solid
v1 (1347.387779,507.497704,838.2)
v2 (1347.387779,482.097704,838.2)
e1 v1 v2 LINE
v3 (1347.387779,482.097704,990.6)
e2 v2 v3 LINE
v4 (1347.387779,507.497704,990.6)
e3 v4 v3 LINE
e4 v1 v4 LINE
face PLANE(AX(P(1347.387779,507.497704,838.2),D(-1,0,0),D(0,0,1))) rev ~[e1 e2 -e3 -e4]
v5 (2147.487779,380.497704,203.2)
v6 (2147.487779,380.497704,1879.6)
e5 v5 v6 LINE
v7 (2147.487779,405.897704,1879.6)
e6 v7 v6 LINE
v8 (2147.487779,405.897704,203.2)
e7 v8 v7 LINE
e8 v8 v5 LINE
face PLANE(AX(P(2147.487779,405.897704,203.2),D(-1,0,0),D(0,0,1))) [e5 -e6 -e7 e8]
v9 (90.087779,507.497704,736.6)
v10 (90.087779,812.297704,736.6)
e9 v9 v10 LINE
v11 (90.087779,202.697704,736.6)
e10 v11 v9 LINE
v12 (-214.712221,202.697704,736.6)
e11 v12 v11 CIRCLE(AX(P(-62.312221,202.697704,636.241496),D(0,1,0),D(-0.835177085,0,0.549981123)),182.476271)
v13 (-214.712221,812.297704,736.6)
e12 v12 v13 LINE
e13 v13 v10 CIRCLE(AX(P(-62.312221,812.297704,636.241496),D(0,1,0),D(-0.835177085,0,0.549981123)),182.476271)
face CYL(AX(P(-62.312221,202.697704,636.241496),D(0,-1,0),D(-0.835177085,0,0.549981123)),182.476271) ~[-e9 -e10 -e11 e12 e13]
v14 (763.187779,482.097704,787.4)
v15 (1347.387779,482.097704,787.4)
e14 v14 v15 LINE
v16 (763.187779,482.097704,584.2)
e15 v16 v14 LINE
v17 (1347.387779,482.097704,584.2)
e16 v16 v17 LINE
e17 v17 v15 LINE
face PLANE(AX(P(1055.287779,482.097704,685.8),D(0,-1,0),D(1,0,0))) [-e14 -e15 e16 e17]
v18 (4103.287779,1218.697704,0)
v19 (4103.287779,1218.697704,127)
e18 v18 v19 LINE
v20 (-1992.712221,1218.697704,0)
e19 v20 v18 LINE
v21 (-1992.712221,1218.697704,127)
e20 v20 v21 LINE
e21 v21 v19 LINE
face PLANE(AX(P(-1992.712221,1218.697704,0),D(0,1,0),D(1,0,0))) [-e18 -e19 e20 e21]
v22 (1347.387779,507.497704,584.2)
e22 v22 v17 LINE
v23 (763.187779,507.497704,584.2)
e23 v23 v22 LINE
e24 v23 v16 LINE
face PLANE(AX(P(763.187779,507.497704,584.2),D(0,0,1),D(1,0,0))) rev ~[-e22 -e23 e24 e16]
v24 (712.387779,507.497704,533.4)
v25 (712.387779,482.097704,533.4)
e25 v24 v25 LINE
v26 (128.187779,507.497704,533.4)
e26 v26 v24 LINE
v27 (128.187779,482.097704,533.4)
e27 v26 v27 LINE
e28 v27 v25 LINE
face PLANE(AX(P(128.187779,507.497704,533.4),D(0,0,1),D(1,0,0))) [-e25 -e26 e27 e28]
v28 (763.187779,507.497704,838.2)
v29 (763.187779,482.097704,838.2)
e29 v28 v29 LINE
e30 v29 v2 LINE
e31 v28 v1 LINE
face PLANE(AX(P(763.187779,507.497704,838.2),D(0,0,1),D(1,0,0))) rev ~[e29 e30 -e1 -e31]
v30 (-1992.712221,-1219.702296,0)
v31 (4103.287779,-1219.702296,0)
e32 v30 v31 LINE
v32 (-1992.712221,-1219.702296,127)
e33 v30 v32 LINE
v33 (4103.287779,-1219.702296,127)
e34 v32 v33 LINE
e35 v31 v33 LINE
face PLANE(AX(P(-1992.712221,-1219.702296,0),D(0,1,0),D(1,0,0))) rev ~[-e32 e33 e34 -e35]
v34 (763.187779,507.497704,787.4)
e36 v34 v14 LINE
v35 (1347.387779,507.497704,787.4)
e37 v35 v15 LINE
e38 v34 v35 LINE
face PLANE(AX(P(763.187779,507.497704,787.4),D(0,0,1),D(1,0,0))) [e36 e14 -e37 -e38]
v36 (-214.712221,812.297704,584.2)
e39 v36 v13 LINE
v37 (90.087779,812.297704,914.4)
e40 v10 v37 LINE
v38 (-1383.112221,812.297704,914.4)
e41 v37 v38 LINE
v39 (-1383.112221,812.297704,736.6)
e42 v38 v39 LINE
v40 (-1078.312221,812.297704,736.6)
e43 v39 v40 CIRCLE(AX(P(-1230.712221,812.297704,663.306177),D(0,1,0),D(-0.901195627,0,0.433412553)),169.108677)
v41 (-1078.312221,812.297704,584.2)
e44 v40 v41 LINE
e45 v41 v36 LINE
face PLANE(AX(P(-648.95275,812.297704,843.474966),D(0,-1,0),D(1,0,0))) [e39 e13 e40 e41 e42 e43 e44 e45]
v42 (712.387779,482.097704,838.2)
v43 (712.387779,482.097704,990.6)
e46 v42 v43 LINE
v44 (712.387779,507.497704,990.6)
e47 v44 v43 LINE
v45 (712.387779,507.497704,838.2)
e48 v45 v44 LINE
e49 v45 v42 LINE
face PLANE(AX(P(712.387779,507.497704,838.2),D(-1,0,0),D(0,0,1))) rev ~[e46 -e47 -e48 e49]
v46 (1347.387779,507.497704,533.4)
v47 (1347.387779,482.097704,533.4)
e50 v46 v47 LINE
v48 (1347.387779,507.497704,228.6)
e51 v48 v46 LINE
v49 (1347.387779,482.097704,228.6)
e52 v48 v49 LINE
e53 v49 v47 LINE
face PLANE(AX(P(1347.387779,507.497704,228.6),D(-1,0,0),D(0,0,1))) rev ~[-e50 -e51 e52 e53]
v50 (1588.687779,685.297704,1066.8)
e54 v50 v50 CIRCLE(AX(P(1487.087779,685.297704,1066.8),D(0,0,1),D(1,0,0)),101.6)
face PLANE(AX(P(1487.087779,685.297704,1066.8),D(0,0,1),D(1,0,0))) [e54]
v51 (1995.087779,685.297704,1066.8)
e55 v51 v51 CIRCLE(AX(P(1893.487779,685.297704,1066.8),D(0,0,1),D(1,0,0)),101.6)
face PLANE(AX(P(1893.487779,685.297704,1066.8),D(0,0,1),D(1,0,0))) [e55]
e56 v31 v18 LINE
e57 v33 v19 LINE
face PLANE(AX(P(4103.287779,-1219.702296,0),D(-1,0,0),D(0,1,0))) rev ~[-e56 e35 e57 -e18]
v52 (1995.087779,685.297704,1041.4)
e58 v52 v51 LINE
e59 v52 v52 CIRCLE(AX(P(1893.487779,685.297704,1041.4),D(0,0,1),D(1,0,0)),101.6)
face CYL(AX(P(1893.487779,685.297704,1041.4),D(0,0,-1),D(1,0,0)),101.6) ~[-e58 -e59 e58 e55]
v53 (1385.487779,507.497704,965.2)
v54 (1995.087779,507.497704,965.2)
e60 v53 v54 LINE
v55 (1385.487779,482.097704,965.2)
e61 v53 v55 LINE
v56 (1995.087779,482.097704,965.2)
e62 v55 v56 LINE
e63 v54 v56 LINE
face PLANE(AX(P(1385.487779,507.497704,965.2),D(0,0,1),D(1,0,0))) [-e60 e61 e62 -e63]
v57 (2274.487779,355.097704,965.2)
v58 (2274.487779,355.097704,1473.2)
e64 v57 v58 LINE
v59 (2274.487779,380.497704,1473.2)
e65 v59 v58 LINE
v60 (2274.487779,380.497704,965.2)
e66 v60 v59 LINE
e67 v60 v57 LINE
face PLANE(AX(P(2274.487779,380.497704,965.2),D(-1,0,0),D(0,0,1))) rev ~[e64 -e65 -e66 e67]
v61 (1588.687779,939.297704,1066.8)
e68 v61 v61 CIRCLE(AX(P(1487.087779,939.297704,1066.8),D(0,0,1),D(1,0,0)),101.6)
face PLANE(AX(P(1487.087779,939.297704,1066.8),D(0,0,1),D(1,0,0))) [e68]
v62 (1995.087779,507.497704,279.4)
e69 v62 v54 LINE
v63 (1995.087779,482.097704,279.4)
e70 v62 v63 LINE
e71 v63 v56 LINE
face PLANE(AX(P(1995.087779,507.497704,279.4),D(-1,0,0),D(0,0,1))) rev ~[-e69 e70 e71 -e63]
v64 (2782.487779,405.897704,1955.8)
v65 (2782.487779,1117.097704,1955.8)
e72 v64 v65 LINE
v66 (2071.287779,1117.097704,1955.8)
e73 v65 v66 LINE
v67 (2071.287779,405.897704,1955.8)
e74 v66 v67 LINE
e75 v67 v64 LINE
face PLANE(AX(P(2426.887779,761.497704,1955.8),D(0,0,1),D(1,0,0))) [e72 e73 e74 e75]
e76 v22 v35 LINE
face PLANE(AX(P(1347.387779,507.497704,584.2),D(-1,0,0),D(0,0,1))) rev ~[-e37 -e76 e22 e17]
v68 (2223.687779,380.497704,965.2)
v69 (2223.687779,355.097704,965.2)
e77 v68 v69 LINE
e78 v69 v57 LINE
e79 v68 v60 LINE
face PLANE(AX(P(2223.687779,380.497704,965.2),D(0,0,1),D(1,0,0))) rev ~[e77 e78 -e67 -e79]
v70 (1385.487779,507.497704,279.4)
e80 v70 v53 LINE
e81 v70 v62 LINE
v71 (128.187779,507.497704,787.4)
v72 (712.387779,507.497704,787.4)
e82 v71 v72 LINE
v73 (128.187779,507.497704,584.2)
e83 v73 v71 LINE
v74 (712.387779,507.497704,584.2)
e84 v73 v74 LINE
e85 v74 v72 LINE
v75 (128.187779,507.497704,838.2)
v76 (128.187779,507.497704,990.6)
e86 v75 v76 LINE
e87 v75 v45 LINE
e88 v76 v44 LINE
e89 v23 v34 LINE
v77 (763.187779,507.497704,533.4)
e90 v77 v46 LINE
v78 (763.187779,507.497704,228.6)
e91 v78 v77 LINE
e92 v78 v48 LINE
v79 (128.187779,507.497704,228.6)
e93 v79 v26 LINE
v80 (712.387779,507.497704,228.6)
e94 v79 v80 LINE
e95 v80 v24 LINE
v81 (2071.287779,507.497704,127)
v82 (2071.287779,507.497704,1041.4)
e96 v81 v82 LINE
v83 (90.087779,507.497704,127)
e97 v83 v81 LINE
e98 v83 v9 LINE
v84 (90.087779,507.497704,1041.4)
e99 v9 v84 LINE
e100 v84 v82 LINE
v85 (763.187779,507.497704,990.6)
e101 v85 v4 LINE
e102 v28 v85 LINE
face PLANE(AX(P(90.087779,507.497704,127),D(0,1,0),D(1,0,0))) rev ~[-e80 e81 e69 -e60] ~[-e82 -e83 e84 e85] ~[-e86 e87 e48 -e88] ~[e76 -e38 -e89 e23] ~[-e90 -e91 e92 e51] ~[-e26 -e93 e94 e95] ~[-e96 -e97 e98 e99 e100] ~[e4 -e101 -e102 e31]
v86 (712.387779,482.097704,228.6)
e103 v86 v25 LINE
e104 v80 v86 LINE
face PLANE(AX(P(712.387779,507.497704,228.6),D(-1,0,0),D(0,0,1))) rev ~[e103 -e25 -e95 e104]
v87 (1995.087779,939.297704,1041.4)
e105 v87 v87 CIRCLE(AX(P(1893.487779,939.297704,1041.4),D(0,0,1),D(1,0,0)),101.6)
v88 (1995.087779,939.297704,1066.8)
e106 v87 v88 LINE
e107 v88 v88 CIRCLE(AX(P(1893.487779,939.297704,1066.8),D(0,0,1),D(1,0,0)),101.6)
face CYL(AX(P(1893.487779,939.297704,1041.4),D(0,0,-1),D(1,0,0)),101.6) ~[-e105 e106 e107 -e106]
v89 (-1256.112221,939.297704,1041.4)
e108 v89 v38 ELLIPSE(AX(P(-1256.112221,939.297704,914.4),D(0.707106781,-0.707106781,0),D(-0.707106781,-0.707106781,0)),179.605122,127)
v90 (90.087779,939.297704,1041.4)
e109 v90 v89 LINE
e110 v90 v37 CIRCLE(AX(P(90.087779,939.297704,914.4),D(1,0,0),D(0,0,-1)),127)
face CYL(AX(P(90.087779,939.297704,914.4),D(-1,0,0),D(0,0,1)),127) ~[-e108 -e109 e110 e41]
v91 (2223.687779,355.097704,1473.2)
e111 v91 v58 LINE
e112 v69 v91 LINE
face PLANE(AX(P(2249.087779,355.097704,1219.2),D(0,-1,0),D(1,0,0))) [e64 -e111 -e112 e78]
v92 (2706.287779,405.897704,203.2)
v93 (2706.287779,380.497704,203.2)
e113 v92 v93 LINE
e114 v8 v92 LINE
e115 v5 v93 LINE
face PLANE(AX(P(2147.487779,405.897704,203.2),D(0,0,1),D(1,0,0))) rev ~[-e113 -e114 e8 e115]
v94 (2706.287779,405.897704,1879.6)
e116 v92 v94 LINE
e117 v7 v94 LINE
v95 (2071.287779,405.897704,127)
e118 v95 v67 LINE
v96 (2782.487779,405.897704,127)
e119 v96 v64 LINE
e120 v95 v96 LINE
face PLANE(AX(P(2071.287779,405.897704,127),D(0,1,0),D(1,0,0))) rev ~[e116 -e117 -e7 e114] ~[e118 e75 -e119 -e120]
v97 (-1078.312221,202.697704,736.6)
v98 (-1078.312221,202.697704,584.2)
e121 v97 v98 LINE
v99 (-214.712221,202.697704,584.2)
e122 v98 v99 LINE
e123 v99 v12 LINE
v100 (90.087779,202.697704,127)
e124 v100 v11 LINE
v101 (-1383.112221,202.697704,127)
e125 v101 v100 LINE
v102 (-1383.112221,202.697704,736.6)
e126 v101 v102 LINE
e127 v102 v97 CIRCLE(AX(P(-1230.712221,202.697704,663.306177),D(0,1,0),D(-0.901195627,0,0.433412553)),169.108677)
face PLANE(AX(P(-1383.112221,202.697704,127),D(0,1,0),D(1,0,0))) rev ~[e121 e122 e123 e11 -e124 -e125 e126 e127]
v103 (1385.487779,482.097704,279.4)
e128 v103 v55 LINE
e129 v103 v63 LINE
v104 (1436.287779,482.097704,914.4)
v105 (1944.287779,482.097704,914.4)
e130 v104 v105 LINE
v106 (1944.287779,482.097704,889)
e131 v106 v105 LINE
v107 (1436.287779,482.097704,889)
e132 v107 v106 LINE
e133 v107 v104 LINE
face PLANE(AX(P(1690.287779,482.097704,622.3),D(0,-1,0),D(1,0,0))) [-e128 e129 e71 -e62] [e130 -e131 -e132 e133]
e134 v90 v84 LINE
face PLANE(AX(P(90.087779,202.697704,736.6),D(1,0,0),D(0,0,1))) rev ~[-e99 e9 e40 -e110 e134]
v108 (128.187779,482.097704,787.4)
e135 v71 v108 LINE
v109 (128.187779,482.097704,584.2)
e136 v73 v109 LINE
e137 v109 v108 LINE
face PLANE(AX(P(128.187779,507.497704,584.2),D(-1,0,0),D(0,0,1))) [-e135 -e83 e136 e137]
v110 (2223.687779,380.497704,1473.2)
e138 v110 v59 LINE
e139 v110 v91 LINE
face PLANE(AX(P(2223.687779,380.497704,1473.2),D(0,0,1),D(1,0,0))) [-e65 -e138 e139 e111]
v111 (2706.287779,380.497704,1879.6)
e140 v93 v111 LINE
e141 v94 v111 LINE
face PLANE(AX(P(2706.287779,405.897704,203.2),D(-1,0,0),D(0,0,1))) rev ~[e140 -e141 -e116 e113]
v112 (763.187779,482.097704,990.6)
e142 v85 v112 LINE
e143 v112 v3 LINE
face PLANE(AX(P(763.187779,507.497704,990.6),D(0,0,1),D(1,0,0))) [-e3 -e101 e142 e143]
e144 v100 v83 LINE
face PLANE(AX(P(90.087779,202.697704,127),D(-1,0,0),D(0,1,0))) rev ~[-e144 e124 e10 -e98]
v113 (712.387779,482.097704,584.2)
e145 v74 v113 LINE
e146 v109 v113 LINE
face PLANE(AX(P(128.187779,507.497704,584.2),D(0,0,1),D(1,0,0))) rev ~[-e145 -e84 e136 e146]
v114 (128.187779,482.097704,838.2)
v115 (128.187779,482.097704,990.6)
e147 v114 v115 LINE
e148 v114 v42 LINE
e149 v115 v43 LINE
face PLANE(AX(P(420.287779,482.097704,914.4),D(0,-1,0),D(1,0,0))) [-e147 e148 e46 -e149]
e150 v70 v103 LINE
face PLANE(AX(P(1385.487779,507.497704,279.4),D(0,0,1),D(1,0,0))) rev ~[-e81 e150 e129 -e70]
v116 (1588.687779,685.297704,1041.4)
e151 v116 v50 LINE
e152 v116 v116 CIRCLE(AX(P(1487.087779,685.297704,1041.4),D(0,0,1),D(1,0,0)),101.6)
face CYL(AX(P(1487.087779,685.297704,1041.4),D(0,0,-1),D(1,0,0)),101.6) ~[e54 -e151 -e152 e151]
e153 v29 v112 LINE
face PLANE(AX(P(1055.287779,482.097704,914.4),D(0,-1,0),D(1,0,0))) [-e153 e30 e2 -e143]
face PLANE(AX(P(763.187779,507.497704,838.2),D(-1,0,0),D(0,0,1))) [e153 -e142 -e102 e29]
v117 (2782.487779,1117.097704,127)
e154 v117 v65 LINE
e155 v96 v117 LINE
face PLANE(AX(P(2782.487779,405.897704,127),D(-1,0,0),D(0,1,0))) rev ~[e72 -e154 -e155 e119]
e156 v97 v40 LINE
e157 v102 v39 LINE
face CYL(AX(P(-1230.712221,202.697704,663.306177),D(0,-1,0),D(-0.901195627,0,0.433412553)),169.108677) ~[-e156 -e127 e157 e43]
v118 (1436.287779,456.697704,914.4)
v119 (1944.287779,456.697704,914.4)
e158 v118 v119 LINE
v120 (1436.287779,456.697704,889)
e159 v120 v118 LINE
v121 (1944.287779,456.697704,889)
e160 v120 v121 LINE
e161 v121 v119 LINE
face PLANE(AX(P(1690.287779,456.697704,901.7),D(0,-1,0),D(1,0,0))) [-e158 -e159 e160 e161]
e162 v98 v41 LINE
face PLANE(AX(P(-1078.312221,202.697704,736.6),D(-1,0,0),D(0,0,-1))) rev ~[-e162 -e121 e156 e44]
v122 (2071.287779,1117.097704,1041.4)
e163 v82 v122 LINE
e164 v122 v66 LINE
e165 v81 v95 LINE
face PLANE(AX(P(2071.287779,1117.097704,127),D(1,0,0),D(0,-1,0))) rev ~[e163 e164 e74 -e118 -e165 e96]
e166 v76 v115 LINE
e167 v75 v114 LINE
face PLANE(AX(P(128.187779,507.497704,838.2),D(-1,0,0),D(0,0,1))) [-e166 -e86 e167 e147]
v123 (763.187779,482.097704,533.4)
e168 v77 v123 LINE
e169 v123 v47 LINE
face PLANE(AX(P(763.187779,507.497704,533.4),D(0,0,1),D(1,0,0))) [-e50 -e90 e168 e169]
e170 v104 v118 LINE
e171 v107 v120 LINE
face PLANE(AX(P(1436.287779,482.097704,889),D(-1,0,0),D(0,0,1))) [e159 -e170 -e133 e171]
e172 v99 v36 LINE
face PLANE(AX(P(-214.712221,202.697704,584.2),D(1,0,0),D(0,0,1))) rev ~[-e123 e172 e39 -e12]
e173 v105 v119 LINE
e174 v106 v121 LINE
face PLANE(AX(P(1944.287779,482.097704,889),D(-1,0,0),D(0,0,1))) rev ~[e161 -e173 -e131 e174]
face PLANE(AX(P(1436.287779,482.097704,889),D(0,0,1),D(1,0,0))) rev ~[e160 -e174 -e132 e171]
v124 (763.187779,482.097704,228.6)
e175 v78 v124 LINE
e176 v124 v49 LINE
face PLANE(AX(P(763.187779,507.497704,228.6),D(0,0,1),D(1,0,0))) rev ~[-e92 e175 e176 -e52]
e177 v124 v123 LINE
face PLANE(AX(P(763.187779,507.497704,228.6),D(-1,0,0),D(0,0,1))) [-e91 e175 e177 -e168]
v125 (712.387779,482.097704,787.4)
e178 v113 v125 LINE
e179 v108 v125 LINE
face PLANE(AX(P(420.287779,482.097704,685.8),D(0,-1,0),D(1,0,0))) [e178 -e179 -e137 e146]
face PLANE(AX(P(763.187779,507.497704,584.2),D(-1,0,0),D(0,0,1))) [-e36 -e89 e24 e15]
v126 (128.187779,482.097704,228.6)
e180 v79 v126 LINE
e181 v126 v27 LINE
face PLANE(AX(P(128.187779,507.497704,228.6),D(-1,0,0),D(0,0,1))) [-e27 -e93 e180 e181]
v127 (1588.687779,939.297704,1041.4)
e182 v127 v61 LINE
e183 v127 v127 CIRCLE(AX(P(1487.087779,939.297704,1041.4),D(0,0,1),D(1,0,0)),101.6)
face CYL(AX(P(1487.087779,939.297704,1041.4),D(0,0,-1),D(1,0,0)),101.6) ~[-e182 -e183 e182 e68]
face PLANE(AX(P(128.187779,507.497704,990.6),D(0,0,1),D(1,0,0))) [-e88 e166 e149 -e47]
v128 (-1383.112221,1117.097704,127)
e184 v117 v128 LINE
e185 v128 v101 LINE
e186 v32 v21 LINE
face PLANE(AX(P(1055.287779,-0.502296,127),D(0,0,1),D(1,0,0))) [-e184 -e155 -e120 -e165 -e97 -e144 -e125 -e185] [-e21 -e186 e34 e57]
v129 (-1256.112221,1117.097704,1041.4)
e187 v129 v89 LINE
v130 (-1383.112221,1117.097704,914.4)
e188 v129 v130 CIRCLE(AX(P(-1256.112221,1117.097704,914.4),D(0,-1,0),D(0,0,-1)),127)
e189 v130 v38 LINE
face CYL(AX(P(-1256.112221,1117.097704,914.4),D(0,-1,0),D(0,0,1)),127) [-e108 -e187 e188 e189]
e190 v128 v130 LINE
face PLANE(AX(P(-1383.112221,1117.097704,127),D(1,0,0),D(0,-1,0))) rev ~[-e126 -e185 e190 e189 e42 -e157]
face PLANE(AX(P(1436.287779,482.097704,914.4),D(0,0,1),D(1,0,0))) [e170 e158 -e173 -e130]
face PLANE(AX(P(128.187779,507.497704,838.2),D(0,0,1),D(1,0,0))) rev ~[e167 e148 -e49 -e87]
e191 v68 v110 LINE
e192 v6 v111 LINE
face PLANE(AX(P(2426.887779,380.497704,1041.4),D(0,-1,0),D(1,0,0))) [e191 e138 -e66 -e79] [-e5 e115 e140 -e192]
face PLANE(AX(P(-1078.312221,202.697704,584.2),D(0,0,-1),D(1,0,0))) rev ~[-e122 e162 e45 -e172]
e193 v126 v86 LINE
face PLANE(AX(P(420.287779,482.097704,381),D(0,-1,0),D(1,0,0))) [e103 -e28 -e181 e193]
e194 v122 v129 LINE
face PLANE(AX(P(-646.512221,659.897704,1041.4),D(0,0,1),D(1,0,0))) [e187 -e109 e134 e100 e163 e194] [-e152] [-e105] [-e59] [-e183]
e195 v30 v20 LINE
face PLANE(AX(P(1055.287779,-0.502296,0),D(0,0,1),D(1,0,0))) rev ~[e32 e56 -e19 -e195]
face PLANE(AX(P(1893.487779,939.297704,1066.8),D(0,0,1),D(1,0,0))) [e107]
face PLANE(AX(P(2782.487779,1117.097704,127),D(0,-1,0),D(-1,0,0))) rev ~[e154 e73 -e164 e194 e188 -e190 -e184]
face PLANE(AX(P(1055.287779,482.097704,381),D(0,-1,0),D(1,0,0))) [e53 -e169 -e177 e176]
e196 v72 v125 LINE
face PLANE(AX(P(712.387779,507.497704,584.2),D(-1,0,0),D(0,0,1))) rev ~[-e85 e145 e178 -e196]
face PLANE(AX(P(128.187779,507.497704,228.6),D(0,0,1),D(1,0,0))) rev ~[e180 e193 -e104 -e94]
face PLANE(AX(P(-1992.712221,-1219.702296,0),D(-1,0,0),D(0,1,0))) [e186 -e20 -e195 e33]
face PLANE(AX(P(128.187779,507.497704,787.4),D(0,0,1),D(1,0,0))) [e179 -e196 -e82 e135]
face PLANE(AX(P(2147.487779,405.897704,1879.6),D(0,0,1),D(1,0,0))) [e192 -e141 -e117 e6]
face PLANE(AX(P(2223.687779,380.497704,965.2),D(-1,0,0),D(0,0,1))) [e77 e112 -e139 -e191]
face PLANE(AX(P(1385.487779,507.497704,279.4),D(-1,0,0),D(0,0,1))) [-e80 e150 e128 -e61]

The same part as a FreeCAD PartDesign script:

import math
import FreeCAD as App
import Part
import Sketcher
Q = App.Units.Quantity


def edges_at(feature, points):
    """Names of the edges that pass closest to the given points."""
    edges = feature.Shape.Edges
    near = lambda p: min(range(len(edges)), key=lambda i: edges[i].distToShape(Part.Vertex(*p))[0])
    return sorted({f"Edge{near(p) + 1}" for p in points})

doc = App.newDocument("Part")
body = doc.addObject("PartDesign::Body", "Body")

# Sketch on XY plane
sketch1 = body.newObject("Sketcher::SketchObject", "Sketch")
sketch1.AttachmentSupport = (doc.getObject("XY_Plane"), [""])
sketch1.MapMode = "FlatFace"
sketch1.addGeometry(Part.LineSegment(App.Vector(-1993, 1219, 0), App.Vector(-1993, -1220, 0)), False)
sketch1.addGeometry(Part.LineSegment(App.Vector(-1993, -1220, 0), App.Vector(4103, -1220, 0)), False)
sketch1.addGeometry(Part.LineSegment(App.Vector(4103, -1220, 0), App.Vector(4103, 1219, 0)), False)
sketch1.addGeometry(Part.LineSegment(App.Vector(4103, 1219, 0), App.Vector(-1993, 1219, 0)), False)
sketch1.addConstraint(Sketcher.Constraint("Coincident", 0, 2, 1, 1))
sketch1.addConstraint(Sketcher.Constraint("Coincident", 1, 2, 2, 1))
sketch1.addConstraint(Sketcher.Constraint("Coincident", 2, 2, 3, 1))
sketch1.addConstraint(Sketcher.Constraint("Coincident", 3, 2, 0, 1))
sketch1.addConstraint(Sketcher.Constraint("Vertical", 0))
sketch1.addConstraint(Sketcher.Constraint("Horizontal", 1))
sketch1.addConstraint(Sketcher.Constraint("Vertical", 2))
sketch1.addConstraint(Sketcher.Constraint("Horizontal", 3))
sketch1.addConstraint(Sketcher.Constraint("DistanceX", 1, 1, 1, 2, Q("240 in")))
sketch1.addConstraint(Sketcher.Constraint("DistanceY", 0, 2, 0, 1, Q("96 in")))
sketch1.addConstraint(Sketcher.Constraint("DistanceX", 0, 2, -1, 1, Q("1992.712221 mm")))
sketch1.addConstraint(Sketcher.Constraint("DistanceY", 0, 2, -1, 1, Q("1219.702296 mm")))
pad1 = body.newObject("PartDesign::Pad", "Pad")
pad1.Profile = sketch1
pad1.Length = Q("5 in")

# Sketch on XY plane
sketch2 = body.newObject("Sketcher::SketchObject", "Sketch001")
sketch2.AttachmentSupport = (doc.getObject("XY_Plane"), [""])
sketch2.MapMode = "FlatFace"
sketch2.AttachmentOffset = App.Placement(App.Vector(0, 0, 5 * 25.4), App.Rotation())
sketch2.addGeometry(Part.LineSegment(App.Vector(-1383, 1117, 0), App.Vector(-1383, 203, 0)), False)
sketch2.addGeometry(Part.LineSegment(App.Vector(-1383, 203, 0), App.Vector(90, 203, 0)), False)
sketch2.addGeometry(Part.LineSegment(App.Vector(90, 203, 0), App.Vector(90, 507, 0)), False)
sketch2.addGeometry(Part.LineSegment(App.Vector(90, 507, 0), App.Vector(2071, 507, 0)), False)
sketch2.addGeometry(Part.LineSegment(App.Vector(2071, 507, 0), App.Vector(2071, 1117, 0)), False)
sketch2.addGeometry(Part.LineSegment(App.Vector(2071, 1117, 0), App.Vector(-1383, 1117, 0)), False)
sketch2.addConstraint(Sketcher.Constraint("Coincident", 0, 2, 1, 1))
sketch2.addConstraint(Sketcher.Constraint("Coincident", 1, 2, 2, 1))
sketch2.addConstraint(Sketcher.Constraint("Coincident", 2, 2, 3, 1))
sketch2.addConstraint(Sketcher.Constraint("Coincident", 3, 2, 4, 1))
sketch2.addConstraint(Sketcher.Constraint("Coincident", 4, 2, 5, 1))
sketch2.addConstraint(Sketcher.Constraint("Coincident", 5, 2, 0, 1))
sketch2.addConstraint(Sketcher.Constraint("Vertical", 0))
sketch2.addConstraint(Sketcher.Constraint("Horizontal", 1))
sketch2.addConstraint(Sketcher.Constraint("Vertical", 2))
sketch2.addConstraint(Sketcher.Constraint("Horizontal", 3))
sketch2.addConstraint(Sketcher.Constraint("Vertical", 4))
sketch2.addConstraint(Sketcher.Constraint("Horizontal", 5))
sketch2.addConstraint(Sketcher.Constraint("DistanceX", 1, 1, 1, 2, Q("58 in")))
sketch2.addConstraint(Sketcher.Constraint("DistanceX", 3, 1, 3, 2, Q("78 in")))
sketch2.addConstraint(Sketcher.Constraint("DistanceY", 0, 2, 0, 1, Q("36 in")))
sketch2.addConstraint(Sketcher.Constraint("DistanceY", 2, 1, 2, 2, Q("12 in")))
sketch2.addConstraint(Sketcher.Constraint("DistanceX", 0, 2, -1, 1, Q("1383.112221 mm")))
sketch2.addConstraint(Sketcher.Constraint("DistanceY", -1, 1, 0, 2, Q("202.697704 mm")))
pad2 = body.newObject("PartDesign::Pad", "Pad001")
pad2.Profile = sketch2
pad2.Length = Q("36 in")

# Sketch on XY plane
sketch3 = body.newObject("Sketcher::SketchObject", "Sketch002")
sketch3.AttachmentSupport = (doc.getObject("XY_Plane"), [""])
sketch3.MapMode = "FlatFace"
sketch3.AttachmentOffset = App.Placement(App.Vector(0, 0, 5 * 25.4), App.Rotation())
sketch3.addGeometry(Part.LineSegment(App.Vector(2782, 1117, 0), App.Vector(2071, 1117, 0)), False)
sketch3.addGeometry(Part.LineSegment(App.Vector(2071, 1117, 0), App.Vector(2071, 406, 0)), False)
sketch3.addGeometry(Part.LineSegment(App.Vector(2071, 406, 0), App.Vector(2782, 406, 0)), False)
sketch3.addGeometry(Part.LineSegment(App.Vector(2782, 406, 0), App.Vector(2782, 1117, 0)), False)
sketch3.addConstraint(Sketcher.Constraint("Coincident", 0, 2, 1, 1))
sketch3.addConstraint(Sketcher.Constraint("Coincident", 1, 2, 2, 1))
sketch3.addConstraint(Sketcher.Constraint("Coincident", 2, 2, 3, 1))
sketch3.addConstraint(Sketcher.Constraint("Coincident", 3, 2, 0, 1))
sketch3.addConstraint(Sketcher.Constraint("Horizontal", 0))
sketch3.addConstraint(Sketcher.Constraint("Vertical", 1))
sketch3.addConstraint(Sketcher.Constraint("Horizontal", 2))
sketch3.addConstraint(Sketcher.Constraint("Vertical", 3))
sketch3.addConstraint(Sketcher.Constraint("Equal", 2, 1))
sketch3.addConstraint(Sketcher.Constraint("DistanceX", 0, 2, 0, 1, Q("28 in")))
sketch3.addConstraint(Sketcher.Constraint("DistanceX", -1, 1, 0, 2, Q("2071.287779 mm")))
sketch3.addConstraint(Sketcher.Constraint("DistanceY", -1, 1, 0, 2, Q("1117.097704 mm")))
pad3 = body.newObject("PartDesign::Pad", "Pad002")
pad3.Profile = sketch3
pad3.Length = Q("72 in")

# Sketch on XY plane
sketch4 = body.newObject("Sketcher::SketchObject", "Sketch003")
sketch4.AttachmentSupport = (doc.getObject("XY_Plane"), [""])
sketch4.MapMode = "FlatFace"
sketch4.AttachmentOffset = App.Placement(App.Vector(0, 0, 41 * 25.4), App.Rotation())
sketch4.addGeometry(Part.Circle(App.Vector(1893, 939, 0), App.Vector(0, 0, 1), 102), False)
sketch4.addGeometry(Part.Circle(App.Vector(1487, 939, 0), App.Vector(0, 0, 1), 102), False)
sketch4.addGeometry(Part.Circle(App.Vector(1487, 685, 0), App.Vector(0, 0, 1), 102), False)
sketch4.addGeometry(Part.Circle(App.Vector(1893, 685, 0), App.Vector(0, 0, 1), 102), False)
sketch4.addConstraint(Sketcher.Constraint("Equal", 0, 1))
sketch4.addConstraint(Sketcher.Constraint("Equal", 1, 2))
sketch4.addConstraint(Sketcher.Constraint("Equal", 2, 3))
sketch4.addConstraint(Sketcher.Constraint("Horizontal", 0, 3, 1, 3))
sketch4.addConstraint(Sketcher.Constraint("Horizontal", 2, 3, 3, 3))
sketch4.addConstraint(Sketcher.Constraint("Vertical", 1, 3, 2, 3))
sketch4.addConstraint(Sketcher.Constraint("Vertical", 0, 3, 3, 3))
sketch4.addConstraint(Sketcher.Constraint("Diameter", 0, Q("8 in")))
sketch4.addConstraint(Sketcher.Constraint("DistanceX", 1, 3, 0, 3, Q("16 in")))
sketch4.addConstraint(Sketcher.Constraint("DistanceY", 2, 3, 1, 3, Q("10 in")))
sketch4.addConstraint(Sketcher.Constraint("DistanceX", -1, 1, 0, 3, Q("1893.487779 mm")))
sketch4.addConstraint(Sketcher.Constraint("DistanceY", -1, 1, 0, 3, Q("939.297704 mm")))
pad4 = body.newObject("PartDesign::Pad", "Pad003")
pad4.Profile = sketch4
pad4.Length = Q("1 in")

# Sketch on XZ plane
sketch5 = body.newObject("Sketcher::SketchObject", "Sketch004")
sketch5.AttachmentSupport = (doc.getObject("XZ_Plane"), [""])
sketch5.MapMode = "FlatFace"
sketch5.AttachmentOffset = App.Placement(App.Vector(0, 0, -507.497704), App.Rotation())
sketch5.addGeometry(Part.LineSegment(App.Vector(1385, 965, 0), App.Vector(1385, 279, 0)), False)
sketch5.addGeometry(Part.LineSegment(App.Vector(1385, 279, 0), App.Vector(1995, 279, 0)), False)
sketch5.addGeometry(Part.LineSegment(App.Vector(1995, 279, 0), App.Vector(1995, 965, 0)), False)
sketch5.addGeometry(Part.LineSegment(App.Vector(1995, 965, 0), App.Vector(1385, 965, 0)), False)
sketch5.addConstraint(Sketcher.Constraint("Coincident", 0, 2, 1, 1))
sketch5.addConstraint(Sketcher.Constraint("Coincident", 1, 2, 2, 1))
sketch5.addConstraint(Sketcher.Constraint("Coincident", 2, 2, 3, 1))
sketch5.addConstraint(Sketcher.Constraint("Coincident", 3, 2, 0, 1))
sketch5.addConstraint(Sketcher.Constraint("Vertical", 0))
sketch5.addConstraint(Sketcher.Constraint("Horizontal", 1))
sketch5.addConstraint(Sketcher.Constraint("Vertical", 2))
sketch5.addConstraint(Sketcher.Constraint("Horizontal", 3))
sketch5.addConstraint(Sketcher.Constraint("DistanceX", 1, 1, 1, 2, Q("24 in")))
sketch5.addConstraint(Sketcher.Constraint("DistanceY", 0, 2, 0, 1, Q("27 in")))
sketch5.addConstraint(Sketcher.Constraint("DistanceY", -1, 1, 0, 2, Q("11 in")))
sketch5.addConstraint(Sketcher.Constraint("DistanceX", -1, 1, 0, 2, Q("1385.487779 mm")))
pad5 = body.newObject("PartDesign::Pad", "Pad004")
pad5.Profile = sketch5
pad5.Length = Q("1 in")

# Sketch on XZ plane
sketch6 = body.newObject("Sketcher::SketchObject", "Sketch005")
sketch6.AttachmentSupport = (doc.getObject("XZ_Plane"), [""])
sketch6.MapMode = "FlatFace"
sketch6.AttachmentOffset = App.Placement(App.Vector(0, 0, -482.097704), App.Rotation())
sketch6.addGeometry(Part.LineSegment(App.Vector(1436, 914, 0), App.Vector(1436, 889, 0)), False)
sketch6.addGeometry(Part.LineSegment(App.Vector(1436, 889, 0), App.Vector(1944, 889, 0)), False)
sketch6.addGeometry(Part.LineSegment(App.Vector(1944, 889, 0), App.Vector(1944, 914, 0)), False)
sketch6.addGeometry(Part.LineSegment(App.Vector(1944, 914, 0), App.Vector(1436, 914, 0)), False)
sketch6.addConstraint(Sketcher.Constraint("Coincident", 0, 2, 1, 1))
sketch6.addConstraint(Sketcher.Constraint("Coincident", 1, 2, 2, 1))
sketch6.addConstraint(Sketcher.Constraint("Coincident", 2, 2, 3, 1))
sketch6.addConstraint(Sketcher.Constraint("Coincident", 3, 2, 0, 1))
sketch6.addConstraint(Sketcher.Constraint("Vertical", 0))
sketch6.addConstraint(Sketcher.Constraint("Horizontal", 1))
sketch6.addConstraint(Sketcher.Constraint("Vertical", 2))
sketch6.addConstraint(Sketcher.Constraint("Horizontal", 3))
sketch6.addConstraint(Sketcher.Constraint("DistanceX", 1, 1, 1, 2, Q("20 in")))
sketch6.addConstraint(Sketcher.Constraint("DistanceY", 0, 2, 0, 1, Q("1 in")))
sketch6.addConstraint(Sketcher.Constraint("DistanceY", -1, 1, 0, 2, Q("35 in")))
sketch6.addConstraint(Sketcher.Constraint("DistanceX", -1, 1, 0, 2, Q("1436.287779 mm")))
pad6 = body.newObject("PartDesign::Pad", "Pad005")
pad6.Profile = sketch6
pad6.Length = Q("1 in")

# Sketch on XZ plane
sketch7 = body.newObject("Sketcher::SketchObject", "Sketch006")
sketch7.AttachmentSupport = (doc.getObject("XZ_Plane"), [""])
sketch7.MapMode = "FlatFace"
sketch7.AttachmentOffset = App.Placement(App.Vector(0, 0, -405.897704), App.Rotation())
sketch7.addGeometry(Part.LineSegment(App.Vector(2147, 1880, 0), App.Vector(2147, 203, 0)), False)
sketch7.addGeometry(Part.LineSegment(App.Vector(2147, 203, 0), App.Vector(2706, 203, 0)), False)
sketch7.addGeometry(Part.LineSegment(App.Vector(2706, 203, 0), App.Vector(2706, 1880, 0)), False)
sketch7.addGeometry(Part.LineSegment(App.Vector(2706, 1880, 0), App.Vector(2147, 1880, 0)), False)
sketch7.addConstraint(Sketcher.Constraint("Coincident", 0, 2, 1, 1))
sketch7.addConstraint(Sketcher.Constraint("Coincident", 1, 2, 2, 1))
sketch7.addConstraint(Sketcher.Constraint("Coincident", 2, 2, 3, 1))
sketch7.addConstraint(Sketcher.Constraint("Coincident", 3, 2, 0, 1))
sketch7.addConstraint(Sketcher.Constraint("Vertical", 0))
sketch7.addConstraint(Sketcher.Constraint("Horizontal", 1))
sketch7.addConstraint(Sketcher.Constraint("Vertical", 2))
sketch7.addConstraint(Sketcher.Constraint("Horizontal", 3))
sketch7.addConstraint(Sketcher.Constraint("DistanceX", 1, 1, 1, 2, Q("22 in")))
sketch7.addConstraint(Sketcher.Constraint("DistanceY", 0, 2, 0, 1, Q("66 in")))
sketch7.addConstraint(Sketcher.Constraint("DistanceY", -1, 1, 0, 2, Q("8 in")))
sketch7.addConstraint(Sketcher.Constraint("DistanceX", -1, 1, 0, 2, Q("2147.487779 mm")))
pad7 = body.newObject("PartDesign::Pad", "Pad006")
pad7.Profile = sketch7
pad7.Length = Q("1 in")

# Sketch on XZ plane
sketch8 = body.newObject("Sketcher::SketchObject", "Sketch007")
sketch8.AttachmentSupport = (doc.getObject("XZ_Plane"), [""])
sketch8.MapMode = "FlatFace"
sketch8.AttachmentOffset = App.Placement(App.Vector(0, 0, -380.497704), App.Rotation())
sketch8.addGeometry(Part.LineSegment(App.Vector(2224, 1473, 0), App.Vector(2224, 965, 0)), False)
sketch8.addGeometry(Part.LineSegment(App.Vector(2224, 965, 0), App.Vector(2274, 965, 0)), False)
sketch8.addGeometry(Part.LineSegment(App.Vector(2274, 965, 0), App.Vector(2274, 1473, 0)), False)
sketch8.addGeometry(Part.LineSegment(App.Vector(2274, 1473, 0), App.Vector(2224, 1473, 0)), False)
sketch8.addConstraint(Sketcher.Constraint("Coincident", 0, 2, 1, 1))
sketch8.addConstraint(Sketcher.Constraint("Coincident", 1, 2, 2, 1))
sketch8.addConstraint(Sketcher.Constraint("Coincident", 2, 2, 3, 1))
sketch8.addConstraint(Sketcher.Constraint("Coincident", 3, 2, 0, 1))
sketch8.addConstraint(Sketcher.Constraint("Vertical", 0))
sketch8.addConstraint(Sketcher.Constraint("Horizontal", 1))
sketch8.addConstraint(Sketcher.Constraint("Vertical", 2))
sketch8.addConstraint(Sketcher.Constraint("Horizontal", 3))
sketch8.addConstraint(Sketcher.Constraint("DistanceX", 1, 1, 1, 2, Q("2 in")))
sketch8.addConstraint(Sketcher.Constraint("DistanceY", 0, 2, 0, 1, Q("20 in")))
sketch8.addConstraint(Sketcher.Constraint("DistanceY", -1, 1, 0, 2, Q("38 in")))
sketch8.addConstraint(Sketcher.Constraint("DistanceX", -1, 1, 0, 2, Q("2223.687779 mm")))
pad8 = body.newObject("PartDesign::Pad", "Pad007")
pad8.Profile = sketch8
pad8.Length = Q("1 in")

# Sketch on XZ plane
sketch9 = body.newObject("Sketcher::SketchObject", "Sketch008")
sketch9.AttachmentSupport = (doc.getObject("XZ_Plane"), [""])
sketch9.MapMode = "FlatFace"
sketch9.AttachmentOffset = App.Placement(App.Vector(0, 0, -507.497704), App.Rotation())
sketch9.addGeometry(Part.LineSegment(App.Vector(128, 991, 0), App.Vector(128, 838, 0)), False)
sketch9.addGeometry(Part.LineSegment(App.Vector(128, 838, 0), App.Vector(712, 838, 0)), False)
sketch9.addGeometry(Part.LineSegment(App.Vector(712, 838, 0), App.Vector(712, 991, 0)), False)
sketch9.addGeometry(Part.LineSegment(App.Vector(712, 991, 0), App.Vector(128, 991, 0)), False)
sketch9.addGeometry(Part.LineSegment(App.Vector(763, 991, 0), App.Vector(763, 838, 0)), False)
sketch9.addGeometry(Part.LineSegment(App.Vector(763, 838, 0), App.Vector(1347, 838, 0)), False)
sketch9.addGeometry(Part.LineSegment(App.Vector(1347, 838, 0), App.Vector(1347, 991, 0)), False)
sketch9.addGeometry(Part.LineSegment(App.Vector(1347, 991, 0), App.Vector(763, 991, 0)), False)
sketch9.addGeometry(Part.LineSegment(App.Vector(128, 787, 0), App.Vector(128, 584, 0)), False)
sketch9.addGeometry(Part.LineSegment(App.Vector(128, 584, 0), App.Vector(712, 584, 0)), False)
sketch9.addGeometry(Part.LineSegment(App.Vector(712, 584, 0), App.Vector(712, 787, 0)), False)
sketch9.addGeometry(Part.LineSegment(App.Vector(712, 787, 0), App.Vector(128, 787, 0)), False)
sketch9.addGeometry(Part.LineSegment(App.Vector(763, 787, 0), App.Vector(763, 584, 0)), False)
sketch9.addGeometry(Part.LineSegment(App.Vector(763, 584, 0), App.Vector(1347, 584, 0)), False)
sketch9.addGeometry(Part.LineSegment(App.Vector(1347, 584, 0), App.Vector(1347, 787, 0)), False)
sketch9.addGeometry(Part.LineSegment(App.Vector(1347, 787, 0), App.Vector(763, 787, 0)), False)
sketch9.addGeometry(Part.LineSegment(App.Vector(128, 533, 0), App.Vector(128, 229, 0)), False)
sketch9.addGeometry(Part.LineSegment(App.Vector(128, 229, 0), App.Vector(712, 229, 0)), False)
sketch9.addGeometry(Part.LineSegment(App.Vector(712, 229, 0), App.Vector(712, 533, 0)), False)
sketch9.addGeometry(Part.LineSegment(App.Vector(712, 533, 0), App.Vector(128, 533, 0)), False)
sketch9.addGeometry(Part.LineSegment(App.Vector(763, 533, 0), App.Vector(763, 229, 0)), False)
sketch9.addGeometry(Part.LineSegment(App.Vector(763, 229, 0), App.Vector(1347, 229, 0)), False)
sketch9.addGeometry(Part.LineSegment(App.Vector(1347, 229, 0), App.Vector(1347, 533, 0)), False)
sketch9.addGeometry(Part.LineSegment(App.Vector(1347, 533, 0), App.Vector(763, 533, 0)), False)
sketch9.addConstraint(Sketcher.Constraint("Coincident", 0, 2, 1, 1))
sketch9.addConstraint(Sketcher.Constraint("Coincident", 1, 2, 2, 1))
sketch9.addConstraint(Sketcher.Constraint("Coincident", 2, 2, 3, 1))
sketch9.addConstraint(Sketcher.Constraint("Coincident", 3, 2, 0, 1))
sketch9.addConstraint(Sketcher.Constraint("Coincident", 4, 2, 5, 1))
sketch9.addConstraint(Sketcher.Constraint("Coincident", 5, 2, 6, 1))
sketch9.addConstraint(Sketcher.Constraint("Coincident", 6, 2, 7, 1))
sketch9.addConstraint(Sketcher.Constraint("Coincident", 7, 2, 4, 1))
sketch9.addConstraint(Sketcher.Constraint("Coincident", 8, 2, 9, 1))
sketch9.addConstraint(Sketcher.Constraint("Coincident", 9, 2, 10, 1))
sketch9.addConstraint(Sketcher.Constraint("Coincident", 10, 2, 11, 1))
sketch9.addConstraint(Sketcher.Constraint("Coincident", 11, 2, 8, 1))
sketch9.addConstraint(Sketcher.Constraint("Coincident", 12, 2, 13, 1))
sketch9.addConstraint(Sketcher.Constraint("Coincident", 13, 2, 14, 1))
sketch9.addConstraint(Sketcher.Constraint("Coincident", 14, 2, 15, 1))
sketch9.addConstraint(Sketcher.Constraint("Coincident", 15, 2, 12, 1))
sketch9.addConstraint(Sketcher.Constraint("Coincident", 16, 2, 17, 1))
sketch9.addConstraint(Sketcher.Constraint("Coincident", 17, 2, 18, 1))
sketch9.addConstraint(Sketcher.Constraint("Coincident", 18, 2, 19, 1))
sketch9.addConstraint(Sketcher.Constraint("Coincident", 19, 2, 16, 1))
sketch9.addConstraint(Sketcher.Constraint("Coincident", 20, 2, 21, 1))
sketch9.addConstraint(Sketcher.Constraint("Coincident", 21, 2, 22, 1))
sketch9.addConstraint(Sketcher.Constraint("Coincident", 22, 2, 23, 1))
sketch9.addConstraint(Sketcher.Constraint("Coincident", 23, 2, 20, 1))
sketch9.addConstraint(Sketcher.Constraint("Vertical", 0))
sketch9.addConstraint(Sketcher.Constraint("Horizontal", 1))
sketch9.addConstraint(Sketcher.Constraint("Vertical", 2))
sketch9.addConstraint(Sketcher.Constraint("Horizontal", 3))
sketch9.addConstraint(Sketcher.Constraint("Vertical", 4))
sketch9.addConstraint(Sketcher.Constraint("Horizontal", 5))
sketch9.addConstraint(Sketcher.Constraint("Vertical", 6))
sketch9.addConstraint(Sketcher.Constraint("Horizontal", 7))
sketch9.addConstraint(Sketcher.Constraint("Vertical", 8))
sketch9.addConstraint(Sketcher.Constraint("Horizontal", 9))
sketch9.addConstraint(Sketcher.Constraint("Vertical", 10))
sketch9.addConstraint(Sketcher.Constraint("Horizontal", 11))
sketch9.addConstraint(Sketcher.Constraint("Vertical", 12))
sketch9.addConstraint(Sketcher.Constraint("Horizontal", 13))
sketch9.addConstraint(Sketcher.Constraint("Vertical", 14))
sketch9.addConstraint(Sketcher.Constraint("Horizontal", 15))
sketch9.addConstraint(Sketcher.Constraint("Vertical", 16))
sketch9.addConstraint(Sketcher.Constraint("Horizontal", 17))
sketch9.addConstraint(Sketcher.Constraint("Vertical", 18))
sketch9.addConstraint(Sketcher.Constraint("Horizontal", 19))
sketch9.addConstraint(Sketcher.Constraint("Vertical", 20))
sketch9.addConstraint(Sketcher.Constraint("Horizontal", 21))
sketch9.addConstraint(Sketcher.Constraint("Vertical", 22))
sketch9.addConstraint(Sketcher.Constraint("Horizontal", 23))
sketch9.addConstraint(Sketcher.Constraint("Horizontal", 1, 2, 4, 2))
sketch9.addConstraint(Sketcher.Constraint("Horizontal", 3, 2, 6, 2))
sketch9.addConstraint(Sketcher.Constraint("Horizontal", 9, 2, 12, 2))
sketch9.addConstraint(Sketcher.Constraint("Horizontal", 11, 2, 14, 2))
sketch9.addConstraint(Sketcher.Constraint("Horizontal", 17, 2, 20, 2))
sketch9.addConstraint(Sketcher.Constraint("Horizontal", 19, 2, 22, 2))
sketch9.addConstraint(Sketcher.Constraint("Vertical", 3, 2, 8, 2))
sketch9.addConstraint(Sketcher.Constraint("Vertical", 2, 2, 9, 2))
sketch9.addConstraint(Sketcher.Constraint("Vertical", 7, 2, 12, 2))
sketch9.addConstraint(Sketcher.Constraint("Vertical", 6, 2, 13, 2))
sketch9.addConstraint(Sketcher.Constraint("Vertical", 11, 2, 16, 2))
sketch9.addConstraint(Sketcher.Constraint("Vertical", 10, 2, 17, 2))
sketch9.addConstraint(Sketcher.Constraint("Vertical", 15, 2, 20, 2))
sketch9.addConstraint(Sketcher.Constraint("Vertical", 14, 2, 21, 2))
sketch9.addConstraint(Sketcher.Constraint("Equal", 3, 5))
sketch9.addConstraint(Sketcher.Constraint("DistanceX", 1, 1, 1, 2, Q("23 in")))
sketch9.addConstraint(Sketcher.Constraint("DistanceY", 0, 2, 0, 1, Q("6 in")))
sketch9.addConstraint(Sketcher.Constraint("DistanceY", 8, 2, 8, 1, Q("8 in")))
sketch9.addConstraint(Sketcher.Constraint("DistanceY", 16, 2, 16, 1, Q("12 in")))
sketch9.addConstraint(Sketcher.Constraint("DistanceY", -1, 1, 0, 2, Q("33 in")))
sketch9.addConstraint(Sketcher.Constraint("DistanceY", -1, 1, 8, 2, Q("23 in")))
sketch9.addConstraint(Sketcher.Constraint("DistanceY", -1, 1, 16, 2, Q("9 in")))
sketch9.addConstraint(Sketcher.Constraint("DistanceX", 1, 2, 4, 2, Q("2 in")))
sketch9.addConstraint(Sketcher.Constraint("DistanceX", -1, 1, 0, 2, Q("128.187779 mm")))
pad9 = body.newObject("PartDesign::Pad", "Pad008")
pad9.Profile = sketch9
pad9.Length = Q("1 in")

# Sketch on XZ plane
sketch10 = body.newObject("Sketcher::SketchObject", "Sketch009")
sketch10.AttachmentSupport = (doc.getObject("XZ_Plane"), [""])
sketch10.MapMode = "FlatFace"
sketch10.AttachmentOffset = App.Placement(App.Vector(0, 0, -202.697704), App.Rotation())
sketch10.addGeometry(Part.LineSegment(App.Vector(-1383, 1041, 0), App.Vector(-1383, 737, 0)), False)
sketch10.addGeometry(Part.ArcOfCircle(Part.Circle(App.Vector(-1231, 663, 0), App.Vector(0, 0, 1), 169), math.radians(26), math.radians(154)), False)
sketch10.addGeometry(Part.LineSegment(App.Vector(-1078, 737, 0), App.Vector(-1078, 584, 0)), False)
sketch10.addGeometry(Part.LineSegment(App.Vector(-1078, 584, 0), App.Vector(-215, 584, 0)), False)
sketch10.addGeometry(Part.LineSegment(App.Vector(-215, 584, 0), App.Vector(-215, 737, 0)), False)
sketch10.addGeometry(Part.ArcOfCircle(Part.Circle(App.Vector(-62, 636, 0), App.Vector(0, 0, 1), 182), math.radians(33), math.radians(147)), False)
sketch10.addGeometry(Part.LineSegment(App.Vector(90, 737, 0), App.Vector(90, 1041, 0)), False)
sketch10.addGeometry(Part.LineSegment(App.Vector(90, 1041, 0), App.Vector(-1383, 1041, 0)), False)
sketch10.addConstraint(Sketcher.Constraint("Coincident", 0, 2, 1, 2))
sketch10.addConstraint(Sketcher.Constraint("Coincident", 1, 1, 2, 1))
sketch10.addConstraint(Sketcher.Constraint("Coincident", 2, 2, 3, 1))
sketch10.addConstraint(Sketcher.Constraint("Coincident", 3, 2, 4, 1))
sketch10.addConstraint(Sketcher.Constraint("Coincident", 4, 2, 5, 2))
sketch10.addConstraint(Sketcher.Constraint("Coincident", 5, 1, 6, 1))
sketch10.addConstraint(Sketcher.Constraint("Coincident", 6, 2, 7, 1))
sketch10.addConstraint(Sketcher.Constraint("Coincident", 7, 2, 0, 1))
sketch10.addConstraint(Sketcher.Constraint("Vertical", 0))
sketch10.addConstraint(Sketcher.Constraint("Vertical", 2))
sketch10.addConstraint(Sketcher.Constraint("Horizontal", 3))
sketch10.addConstraint(Sketcher.Constraint("Vertical", 4))
sketch10.addConstraint(Sketcher.Constraint("Vertical", 6))
sketch10.addConstraint(Sketcher.Constraint("Horizontal", 7))
sketch10.addConstraint(Sketcher.Constraint("Horizontal", 0, 2, 1, 1))
sketch10.addConstraint(Sketcher.Constraint("Horizontal", 1, 1, 4, 2))
sketch10.addConstraint(Sketcher.Constraint("Horizontal", 4, 2, 5, 1))
sketch10.addConstraint(Sketcher.Constraint("DistanceX", 3, 1, 3, 2, Q("34 in")))
sketch10.addConstraint(Sketcher.Constraint("DistanceX", 7, 2, 7, 1, Q("58 in")))
sketch10.addConstraint(Sketcher.Constraint("DistanceY", 0, 2, 0, 1, Q("12 in")))
sketch10.addConstraint(Sketcher.Constraint("DistanceY", 2, 2, 2, 1, Q("6 in")))
sketch10.addConstraint(Sketcher.Constraint("DistanceY", -1, 1, 0, 2, Q("29 in")))
sketch10.addConstraint(Sketcher.Constraint("DistanceX", 0, 2, 1, 3, Q("6 in")))
sketch10.addConstraint(Sketcher.Constraint("Radius", 5, Q("182.476271 mm")))
sketch10.addConstraint(Sketcher.Constraint("Radius", 1, Q("169.108677 mm")))
sketch10.addConstraint(Sketcher.Constraint("DistanceX", 1, 3, -1, 1, Q("1230.712221 mm")))
pocket1 = body.newObject("PartDesign::Pocket", "Pocket")
pocket1.Profile = sketch10
pocket1.Length = Q("24 in")
doc.recompute()

fillet = body.newObject("PartDesign::Fillet", "Fillet")
fillet.Base = (pocket1, edges_at(pocket1, [(-646.512, 812.298, 1041.4), (-1383.112, 964.698, 1041.4)]))
fillet.Radius = Q("5 in")

doc.recompute()
